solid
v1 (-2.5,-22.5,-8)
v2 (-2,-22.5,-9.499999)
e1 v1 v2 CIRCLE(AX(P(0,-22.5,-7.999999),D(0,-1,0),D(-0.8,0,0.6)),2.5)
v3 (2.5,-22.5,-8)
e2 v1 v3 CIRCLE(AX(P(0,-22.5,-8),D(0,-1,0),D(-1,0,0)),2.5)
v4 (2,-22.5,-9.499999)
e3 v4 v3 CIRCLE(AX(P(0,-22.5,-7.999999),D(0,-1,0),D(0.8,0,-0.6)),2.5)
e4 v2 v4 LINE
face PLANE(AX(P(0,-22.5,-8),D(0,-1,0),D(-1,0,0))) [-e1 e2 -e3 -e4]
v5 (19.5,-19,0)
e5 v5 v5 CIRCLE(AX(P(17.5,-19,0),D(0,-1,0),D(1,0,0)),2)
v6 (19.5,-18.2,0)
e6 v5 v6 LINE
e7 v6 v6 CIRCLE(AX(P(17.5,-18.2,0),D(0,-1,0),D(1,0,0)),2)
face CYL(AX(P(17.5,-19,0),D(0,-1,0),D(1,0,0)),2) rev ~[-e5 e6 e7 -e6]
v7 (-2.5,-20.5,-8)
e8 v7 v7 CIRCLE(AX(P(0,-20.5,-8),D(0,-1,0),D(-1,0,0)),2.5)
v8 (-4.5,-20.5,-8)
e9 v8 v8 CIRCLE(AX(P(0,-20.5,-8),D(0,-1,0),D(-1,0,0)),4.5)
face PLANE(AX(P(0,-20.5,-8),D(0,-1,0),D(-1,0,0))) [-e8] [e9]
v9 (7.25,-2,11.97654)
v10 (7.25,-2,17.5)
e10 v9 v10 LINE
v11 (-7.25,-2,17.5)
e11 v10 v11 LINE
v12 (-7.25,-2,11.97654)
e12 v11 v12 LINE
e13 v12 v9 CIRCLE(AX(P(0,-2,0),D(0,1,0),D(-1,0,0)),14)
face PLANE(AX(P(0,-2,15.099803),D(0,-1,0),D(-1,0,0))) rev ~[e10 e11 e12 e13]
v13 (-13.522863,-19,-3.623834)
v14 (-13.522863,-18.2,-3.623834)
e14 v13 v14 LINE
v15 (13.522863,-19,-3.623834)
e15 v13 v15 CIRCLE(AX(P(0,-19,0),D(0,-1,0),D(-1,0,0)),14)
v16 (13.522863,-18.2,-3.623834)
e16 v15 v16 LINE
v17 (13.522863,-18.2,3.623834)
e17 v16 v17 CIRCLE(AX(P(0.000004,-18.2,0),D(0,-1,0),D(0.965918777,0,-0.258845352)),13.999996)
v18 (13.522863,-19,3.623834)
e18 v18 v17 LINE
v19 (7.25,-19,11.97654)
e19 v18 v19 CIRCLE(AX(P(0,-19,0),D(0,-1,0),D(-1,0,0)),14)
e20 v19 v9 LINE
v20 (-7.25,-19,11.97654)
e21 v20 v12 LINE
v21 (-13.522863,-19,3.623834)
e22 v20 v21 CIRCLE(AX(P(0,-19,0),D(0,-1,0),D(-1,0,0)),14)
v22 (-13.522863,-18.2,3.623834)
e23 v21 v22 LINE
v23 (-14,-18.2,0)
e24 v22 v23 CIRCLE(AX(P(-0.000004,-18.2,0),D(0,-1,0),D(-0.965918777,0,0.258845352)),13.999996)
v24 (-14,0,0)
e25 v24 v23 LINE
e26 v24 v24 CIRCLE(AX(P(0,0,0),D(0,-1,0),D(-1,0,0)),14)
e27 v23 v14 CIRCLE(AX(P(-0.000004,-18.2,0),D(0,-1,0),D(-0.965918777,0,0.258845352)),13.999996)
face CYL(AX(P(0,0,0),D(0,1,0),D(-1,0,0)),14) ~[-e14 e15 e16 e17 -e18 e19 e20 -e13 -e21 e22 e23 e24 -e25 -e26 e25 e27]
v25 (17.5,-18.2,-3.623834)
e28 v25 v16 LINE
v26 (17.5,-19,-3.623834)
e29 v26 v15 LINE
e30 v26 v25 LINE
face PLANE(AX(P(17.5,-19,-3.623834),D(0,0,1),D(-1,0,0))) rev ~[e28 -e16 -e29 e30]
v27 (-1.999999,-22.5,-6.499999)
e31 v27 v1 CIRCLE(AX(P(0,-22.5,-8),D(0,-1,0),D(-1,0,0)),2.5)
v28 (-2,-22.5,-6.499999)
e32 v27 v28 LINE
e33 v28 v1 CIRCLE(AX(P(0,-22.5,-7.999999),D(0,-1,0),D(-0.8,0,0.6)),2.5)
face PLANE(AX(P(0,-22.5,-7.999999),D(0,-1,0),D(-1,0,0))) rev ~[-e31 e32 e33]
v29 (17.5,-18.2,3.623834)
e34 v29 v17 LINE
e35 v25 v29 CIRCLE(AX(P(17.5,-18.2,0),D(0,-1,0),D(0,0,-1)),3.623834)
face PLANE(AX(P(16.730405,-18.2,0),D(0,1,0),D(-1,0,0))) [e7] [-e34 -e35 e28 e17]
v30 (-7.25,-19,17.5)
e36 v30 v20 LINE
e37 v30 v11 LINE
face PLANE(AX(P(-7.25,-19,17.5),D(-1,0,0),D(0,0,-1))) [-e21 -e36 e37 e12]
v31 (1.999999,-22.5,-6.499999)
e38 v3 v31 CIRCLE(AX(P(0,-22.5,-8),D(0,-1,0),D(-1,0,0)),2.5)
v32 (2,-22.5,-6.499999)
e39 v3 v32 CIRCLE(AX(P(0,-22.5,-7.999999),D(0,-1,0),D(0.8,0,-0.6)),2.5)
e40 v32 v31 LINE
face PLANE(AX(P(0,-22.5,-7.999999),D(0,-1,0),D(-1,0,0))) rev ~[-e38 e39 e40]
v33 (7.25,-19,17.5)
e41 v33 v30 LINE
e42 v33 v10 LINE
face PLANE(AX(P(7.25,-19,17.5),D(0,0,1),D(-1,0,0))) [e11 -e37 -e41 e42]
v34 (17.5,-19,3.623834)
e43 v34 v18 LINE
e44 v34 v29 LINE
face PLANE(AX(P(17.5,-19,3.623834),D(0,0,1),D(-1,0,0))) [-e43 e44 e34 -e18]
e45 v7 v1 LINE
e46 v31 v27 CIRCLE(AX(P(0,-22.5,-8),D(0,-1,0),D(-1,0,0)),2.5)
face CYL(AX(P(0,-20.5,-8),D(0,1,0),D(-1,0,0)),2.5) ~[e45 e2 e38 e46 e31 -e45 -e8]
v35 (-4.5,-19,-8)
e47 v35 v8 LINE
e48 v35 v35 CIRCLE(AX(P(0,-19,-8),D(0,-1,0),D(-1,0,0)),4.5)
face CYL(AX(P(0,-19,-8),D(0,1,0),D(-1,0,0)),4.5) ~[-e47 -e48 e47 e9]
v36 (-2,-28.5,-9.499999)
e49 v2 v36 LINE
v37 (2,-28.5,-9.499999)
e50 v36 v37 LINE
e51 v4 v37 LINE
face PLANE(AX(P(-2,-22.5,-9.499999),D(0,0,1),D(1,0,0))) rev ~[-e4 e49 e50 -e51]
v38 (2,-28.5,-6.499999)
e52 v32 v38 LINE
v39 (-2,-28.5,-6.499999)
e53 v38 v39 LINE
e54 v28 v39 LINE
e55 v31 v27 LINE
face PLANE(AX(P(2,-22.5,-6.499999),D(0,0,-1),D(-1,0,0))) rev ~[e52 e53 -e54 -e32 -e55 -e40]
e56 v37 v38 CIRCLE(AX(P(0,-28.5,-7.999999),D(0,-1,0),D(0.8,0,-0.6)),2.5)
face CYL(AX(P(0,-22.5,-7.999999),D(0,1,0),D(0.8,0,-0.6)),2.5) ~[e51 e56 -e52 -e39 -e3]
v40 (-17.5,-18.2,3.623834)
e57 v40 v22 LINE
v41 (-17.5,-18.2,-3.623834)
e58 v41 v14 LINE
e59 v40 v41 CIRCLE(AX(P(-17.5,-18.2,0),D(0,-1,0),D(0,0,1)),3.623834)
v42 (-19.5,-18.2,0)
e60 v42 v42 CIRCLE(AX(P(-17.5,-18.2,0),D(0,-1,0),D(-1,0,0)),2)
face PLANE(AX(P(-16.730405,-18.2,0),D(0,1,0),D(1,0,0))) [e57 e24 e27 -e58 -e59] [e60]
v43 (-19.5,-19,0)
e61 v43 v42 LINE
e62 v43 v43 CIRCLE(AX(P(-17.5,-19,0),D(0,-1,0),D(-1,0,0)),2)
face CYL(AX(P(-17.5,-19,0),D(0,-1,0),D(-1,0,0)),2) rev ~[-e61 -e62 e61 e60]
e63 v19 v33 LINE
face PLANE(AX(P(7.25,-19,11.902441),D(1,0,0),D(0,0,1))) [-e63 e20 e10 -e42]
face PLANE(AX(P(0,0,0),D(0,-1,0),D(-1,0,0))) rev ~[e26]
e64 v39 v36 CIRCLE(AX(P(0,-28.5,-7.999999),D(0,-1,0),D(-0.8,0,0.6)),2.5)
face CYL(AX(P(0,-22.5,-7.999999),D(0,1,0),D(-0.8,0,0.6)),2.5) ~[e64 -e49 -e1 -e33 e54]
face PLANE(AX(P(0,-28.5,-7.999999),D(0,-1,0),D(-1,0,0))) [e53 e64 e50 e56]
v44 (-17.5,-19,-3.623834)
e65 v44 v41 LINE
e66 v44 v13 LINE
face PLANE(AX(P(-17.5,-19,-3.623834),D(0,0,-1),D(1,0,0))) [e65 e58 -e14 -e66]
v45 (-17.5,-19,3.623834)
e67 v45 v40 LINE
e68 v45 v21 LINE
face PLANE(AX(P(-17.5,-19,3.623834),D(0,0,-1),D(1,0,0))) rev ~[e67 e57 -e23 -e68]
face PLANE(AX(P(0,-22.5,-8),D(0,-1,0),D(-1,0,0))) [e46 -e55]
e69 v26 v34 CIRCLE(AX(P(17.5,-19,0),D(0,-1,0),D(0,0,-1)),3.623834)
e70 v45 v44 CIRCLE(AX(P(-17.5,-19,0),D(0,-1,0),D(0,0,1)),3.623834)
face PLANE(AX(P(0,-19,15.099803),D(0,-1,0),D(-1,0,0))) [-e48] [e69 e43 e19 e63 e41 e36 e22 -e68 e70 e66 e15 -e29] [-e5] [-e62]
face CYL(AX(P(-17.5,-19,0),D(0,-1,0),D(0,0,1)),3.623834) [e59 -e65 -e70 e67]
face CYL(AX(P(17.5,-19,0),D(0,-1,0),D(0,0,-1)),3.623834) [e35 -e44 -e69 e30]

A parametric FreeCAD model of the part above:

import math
import FreeCAD as App
import Part
import Sketcher

V = App.Vector

doc = App.newDocument("Part")
body = doc.addObject("PartDesign::Body", "Body")

# Sketch on XZ plane
sketch1 = body.newObject("Sketcher::SketchObject", "Sketch")
sketch1.AttachmentSupport = (doc.getObject("XZ_Plane"), [""])
sketch1.MapMode = "FlatFace"
sketch1.addGeometry(Part.Circle(V(0, 0, 0), V(0, 0, 1), 14), False)
sketch1.addConstraint(Sketcher.Constraint("Coincident", 0, 3, -1, 1))
sketch1.addConstraint(Sketcher.Constraint("Diameter", 0, 28.0))
pad1 = body.newObject("PartDesign::Pad", "Pad")
pad1.Profile = sketch1
pad1.Length = 19

# Sketch on XZ plane
sketch2 = body.newObject("Sketcher::SketchObject", "Sketch001")
sketch2.AttachmentSupport = (doc.getObject("XZ_Plane"), [""])
sketch2.MapMode = "FlatFace"
sketch2.AttachmentOffset = App.Placement(V(0, 0, 19), App.Rotation())
sketch2.addGeometry(Part.Circle(V(0, 8, 0), V(0, 0, 1), 4.5), False)
sketch2.addConstraint(Sketcher.Constraint("PointOnObject", 0, 3, -2))
sketch2.addConstraint(Sketcher.Constraint("Diameter", 0, 9.0))
sketch2.addConstraint(Sketcher.Constraint("DistanceY", -1, 1, 0, 3, 8.0))
pad2 = body.newObject("PartDesign::Pad", "Pad001")
pad2.Profile = sketch2
pad2.Length = 1.5

# Sketch on XZ plane
sketch3 = body.newObject("Sketcher::SketchObject", "Sketch002")
sketch3.AttachmentSupport = (doc.getObject("XZ_Plane"), [""])
sketch3.MapMode = "FlatFace"
sketch3.AttachmentOffset = App.Placement(V(0, 0, 20.5), App.Rotation())
sketch3.addGeometry(Part.Circle(V(0, 8, 0), V(0, 0, 1), 2.5), False)
sketch3.addConstraint(Sketcher.Constraint("PointOnObject", 0, 3, -2))
sketch3.addConstraint(Sketcher.Constraint("Diameter", 0, 5.0))
sketch3.addConstraint(Sketcher.Constraint("DistanceY", -1, 1, 0, 3, 8.0))
pad3 = body.newObject("PartDesign::Pad", "Pad002")
pad3.Profile = sketch3
pad3.Length = 2

# Sketch on XZ plane
sketch4 = body.newObject("Sketcher::SketchObject", "Sketch003")
sketch4.AttachmentSupport = (doc.getObject("XZ_Plane"), [""])
sketch4.MapMode = "FlatFace"
sketch4.AttachmentOffset = App.Placement(V(0, 0, 22.5), App.Rotation())
sketch4.addGeometry(Part.ArcOfCircle(Part.Circle(V(0, 8, 0), V(0, 0, 1), 2.5), math.radians(143), math.radians(217)), False)
sketch4.addGeometry(Part.LineSegment(V(-2, 6.5, 0), V(2, 6.5, 0)), False)
sketch4.addGeometry(Part.ArcOfCircle(Part.Circle(V(0, 8, 0), V(0, 0, 1), 2.5), math.radians(-37), math.radians(37)), False)
sketch4.addGeometry(Part.LineSegment(V(2, 9.5, 0), V(-2, 9.5, 0)), False)
sketch4.addConstraint(Sketcher.Constraint("Coincident", 0, 2, 1, 1))
sketch4.addConstraint(Sketcher.Constraint("Coincident", 1, 2, 2, 1))
sketch4.addConstraint(Sketcher.Constraint("Coincident", 2, 2, 3, 1))
sketch4.addConstraint(Sketcher.Constraint("Coincident", 3, 2, 0, 1))
sketch4.addConstraint(Sketcher.Constraint("Horizontal", 1))
sketch4.addConstraint(Sketcher.Constraint("Horizontal", 3))
sketch4.addConstraint(Sketcher.Constraint("Coincident", 2, 3, 0, 3))
sketch4.addConstraint(Sketcher.Constraint("Equal", 0, 2))
sketch4.addConstraint(Sketcher.Constraint("PointOnObject", 0, 3, -2))
sketch4.addConstraint(Sketcher.Constraint("Vertical", 1, 2, 2, 2))
sketch4.addConstraint(Sketcher.Constraint("Radius", 0, 2.5))
sketch4.addConstraint(Sketcher.Constraint("DistanceX", 1, 1, 1, 2, 4.0))
sketch4.addConstraint(Sketcher.Constraint("DistanceY", -1, 1, 0, 3, 7.999999))
pad4 = body.newObject("PartDesign::Pad", "Pad003")
pad4.Profile = sketch4
pad4.Length = 6

# Sketch on XZ plane
sketch5 = body.newObject("Sketcher::SketchObject", "Sketch004")
sketch5.AttachmentSupport = (doc.getObject("XZ_Plane"), [""])
sketch5.MapMode = "FlatFace"
sketch5.AttachmentOffset = App.Placement(V(0, 0, 19), App.Rotation())
sketch5.addGeometry(Part.ArcOfCircle(Part.Circle(V(0, 0, 0), V(0, 0, 1), 14), math.radians(-15), math.radians(15)), False)
sketch5.addGeometry(Part.LineSegment(V(13.5, -3.6, 0), V(17.5, -3.6, 0)), False)
sketch5.addGeometry(Part.ArcOfCircle(Part.Circle(V(17.5, 0, 0), V(0, 0, 1), 3.6), math.radians(-90), math.radians(90)), False)
sketch5.addGeometry(Part.LineSegment(V(17.5, 3.6, 0), V(13.5, 3.6, 0)), False)
sketch5.addGeometry(Part.Circle(V(17.5, 0, 0), V(0, 0, 1), 2), False)
sketch5.addConstraint(Sketcher.Constraint("Coincident", 0, 1, 1, 1))
sketch5.addConstraint(Sketcher.Constraint("Tangent", 1, 2, 2, 1))
sketch5.addConstraint(Sketcher.Constraint("Tangent", 2, 2, 3, 1))
sketch5.addConstraint(Sketcher.Constraint("Coincident", 3, 2, 0, 2))
sketch5.addConstraint(Sketcher.Constraint("Horizontal", 1))
sketch5.addConstraint(Sketcher.Constraint("Horizontal", 3))
sketch5.addConstraint(Sketcher.Constraint("Coincident", 0, 3, -1, 1))
sketch5.addConstraint(Sketcher.Constraint("Coincident", 4, 3, 2, 3))
sketch5.addConstraint(Sketcher.Constraint("PointOnObject", 2, 3, -1))
sketch5.addConstraint(Sketcher.Constraint("Diameter", 4, 4.0))
sketch5.addConstraint(Sketcher.Constraint("DistanceX", -1, 1, 2, 3, 17.5))
sketch5.addConstraint(Sketcher.Constraint("Radius", 0, 13.999996))
sketch5.addConstraint(Sketcher.Constraint("Radius", 2, 3.623834))
pad5 = body.newObject("PartDesign::Pad", "Pad004")
pad5.Profile = sketch5
pad5.Length = 0.8
pad5.Reversed = True
doc.recompute()

polarpattern = body.newObject("PartDesign::PolarPattern", "PolarPattern")
polarpattern.Originals = [pad5]
polarpattern.Axis = (doc.getObject("Y_Axis"), [""])
polarpattern.Angle = 360
polarpattern.Occurrences = 2
body.Tip = polarpattern

# Sketch on XZ plane
sketch6 = body.newObject("Sketcher::SketchObject", "Sketch005")
sketch6.AttachmentSupport = (doc.getObject("XZ_Plane"), [""])
sketch6.MapMode = "FlatFace"
sketch6.AttachmentOffset = App.Placement(V(0, 0, 19), App.Rotation())
sketch6.addGeometry(Part.LineSegment(V(7, -18, 0), V(7, -12, 0)), False)
sketch6.addGeometry(Part.ArcOfCircle(Part.Circle(V(0, 0, 0), V(0, 0, 1), 14), math.radians(-121), math.radians(-59)), False)
sketch6.addGeometry(Part.LineSegment(V(-7, -12, 0), V(-7, -18, 0)), False)
sketch6.addGeometry(Part.LineSegment(V(-7, -18, 0), V(7, -18, 0)), False)
sketch6.addConstraint(Sketcher.Constraint("Coincident", 0, 2, 1, 2))
sketch6.addConstraint(Sketcher.Constraint("Coincident", 1, 1, 2, 1))
sketch6.addConstraint(Sketcher.Constraint("Coincident", 2, 2, 3, 1))
sketch6.addConstraint(Sketcher.Constraint("Coincident", 3, 2, 0, 1))
sketch6.addConstraint(Sketcher.Constraint("Vertical", 0))
sketch6.addConstraint(Sketcher.Constraint("Vertical", 2))
sketch6.addConstraint(Sketcher.Constraint("Horizontal", 3))
sketch6.addConstraint(Sketcher.Constraint("Symmetric", 0, 2, 1, 1, -2))
sketch6.addConstraint(Sketcher.Constraint("Radius", 1, 14.0))
sketch6.addConstraint(Sketcher.Constraint("DistanceX", 3, 1, 3, 2, 14.5))
sketch6.addConstraint(Sketcher.Constraint("DistanceY", 2, 2, -1, 1, 17.5))
sketch6.addConstraint(Sketcher.Constraint("DistanceY", 0, 1, 0, 2, 5.59756))
pad6 = body.newObject("PartDesign::Pad", "Pad005")
pad6.Profile = sketch6
pad6.Length = 17
pad6.Reversed = True
body2 = doc.addObject("PartDesign::Body", "Body001")
doc.recompute()

body.Placement = App.Placement(V(0, 0, 0), App.Rotation(V(0, 1, 0), 180))
boolean = body2.newObject("PartDesign::Boolean", "Boolean")
boolean.Type = "Fuse"
boolean.addObjects([body])

doc.recompute()
